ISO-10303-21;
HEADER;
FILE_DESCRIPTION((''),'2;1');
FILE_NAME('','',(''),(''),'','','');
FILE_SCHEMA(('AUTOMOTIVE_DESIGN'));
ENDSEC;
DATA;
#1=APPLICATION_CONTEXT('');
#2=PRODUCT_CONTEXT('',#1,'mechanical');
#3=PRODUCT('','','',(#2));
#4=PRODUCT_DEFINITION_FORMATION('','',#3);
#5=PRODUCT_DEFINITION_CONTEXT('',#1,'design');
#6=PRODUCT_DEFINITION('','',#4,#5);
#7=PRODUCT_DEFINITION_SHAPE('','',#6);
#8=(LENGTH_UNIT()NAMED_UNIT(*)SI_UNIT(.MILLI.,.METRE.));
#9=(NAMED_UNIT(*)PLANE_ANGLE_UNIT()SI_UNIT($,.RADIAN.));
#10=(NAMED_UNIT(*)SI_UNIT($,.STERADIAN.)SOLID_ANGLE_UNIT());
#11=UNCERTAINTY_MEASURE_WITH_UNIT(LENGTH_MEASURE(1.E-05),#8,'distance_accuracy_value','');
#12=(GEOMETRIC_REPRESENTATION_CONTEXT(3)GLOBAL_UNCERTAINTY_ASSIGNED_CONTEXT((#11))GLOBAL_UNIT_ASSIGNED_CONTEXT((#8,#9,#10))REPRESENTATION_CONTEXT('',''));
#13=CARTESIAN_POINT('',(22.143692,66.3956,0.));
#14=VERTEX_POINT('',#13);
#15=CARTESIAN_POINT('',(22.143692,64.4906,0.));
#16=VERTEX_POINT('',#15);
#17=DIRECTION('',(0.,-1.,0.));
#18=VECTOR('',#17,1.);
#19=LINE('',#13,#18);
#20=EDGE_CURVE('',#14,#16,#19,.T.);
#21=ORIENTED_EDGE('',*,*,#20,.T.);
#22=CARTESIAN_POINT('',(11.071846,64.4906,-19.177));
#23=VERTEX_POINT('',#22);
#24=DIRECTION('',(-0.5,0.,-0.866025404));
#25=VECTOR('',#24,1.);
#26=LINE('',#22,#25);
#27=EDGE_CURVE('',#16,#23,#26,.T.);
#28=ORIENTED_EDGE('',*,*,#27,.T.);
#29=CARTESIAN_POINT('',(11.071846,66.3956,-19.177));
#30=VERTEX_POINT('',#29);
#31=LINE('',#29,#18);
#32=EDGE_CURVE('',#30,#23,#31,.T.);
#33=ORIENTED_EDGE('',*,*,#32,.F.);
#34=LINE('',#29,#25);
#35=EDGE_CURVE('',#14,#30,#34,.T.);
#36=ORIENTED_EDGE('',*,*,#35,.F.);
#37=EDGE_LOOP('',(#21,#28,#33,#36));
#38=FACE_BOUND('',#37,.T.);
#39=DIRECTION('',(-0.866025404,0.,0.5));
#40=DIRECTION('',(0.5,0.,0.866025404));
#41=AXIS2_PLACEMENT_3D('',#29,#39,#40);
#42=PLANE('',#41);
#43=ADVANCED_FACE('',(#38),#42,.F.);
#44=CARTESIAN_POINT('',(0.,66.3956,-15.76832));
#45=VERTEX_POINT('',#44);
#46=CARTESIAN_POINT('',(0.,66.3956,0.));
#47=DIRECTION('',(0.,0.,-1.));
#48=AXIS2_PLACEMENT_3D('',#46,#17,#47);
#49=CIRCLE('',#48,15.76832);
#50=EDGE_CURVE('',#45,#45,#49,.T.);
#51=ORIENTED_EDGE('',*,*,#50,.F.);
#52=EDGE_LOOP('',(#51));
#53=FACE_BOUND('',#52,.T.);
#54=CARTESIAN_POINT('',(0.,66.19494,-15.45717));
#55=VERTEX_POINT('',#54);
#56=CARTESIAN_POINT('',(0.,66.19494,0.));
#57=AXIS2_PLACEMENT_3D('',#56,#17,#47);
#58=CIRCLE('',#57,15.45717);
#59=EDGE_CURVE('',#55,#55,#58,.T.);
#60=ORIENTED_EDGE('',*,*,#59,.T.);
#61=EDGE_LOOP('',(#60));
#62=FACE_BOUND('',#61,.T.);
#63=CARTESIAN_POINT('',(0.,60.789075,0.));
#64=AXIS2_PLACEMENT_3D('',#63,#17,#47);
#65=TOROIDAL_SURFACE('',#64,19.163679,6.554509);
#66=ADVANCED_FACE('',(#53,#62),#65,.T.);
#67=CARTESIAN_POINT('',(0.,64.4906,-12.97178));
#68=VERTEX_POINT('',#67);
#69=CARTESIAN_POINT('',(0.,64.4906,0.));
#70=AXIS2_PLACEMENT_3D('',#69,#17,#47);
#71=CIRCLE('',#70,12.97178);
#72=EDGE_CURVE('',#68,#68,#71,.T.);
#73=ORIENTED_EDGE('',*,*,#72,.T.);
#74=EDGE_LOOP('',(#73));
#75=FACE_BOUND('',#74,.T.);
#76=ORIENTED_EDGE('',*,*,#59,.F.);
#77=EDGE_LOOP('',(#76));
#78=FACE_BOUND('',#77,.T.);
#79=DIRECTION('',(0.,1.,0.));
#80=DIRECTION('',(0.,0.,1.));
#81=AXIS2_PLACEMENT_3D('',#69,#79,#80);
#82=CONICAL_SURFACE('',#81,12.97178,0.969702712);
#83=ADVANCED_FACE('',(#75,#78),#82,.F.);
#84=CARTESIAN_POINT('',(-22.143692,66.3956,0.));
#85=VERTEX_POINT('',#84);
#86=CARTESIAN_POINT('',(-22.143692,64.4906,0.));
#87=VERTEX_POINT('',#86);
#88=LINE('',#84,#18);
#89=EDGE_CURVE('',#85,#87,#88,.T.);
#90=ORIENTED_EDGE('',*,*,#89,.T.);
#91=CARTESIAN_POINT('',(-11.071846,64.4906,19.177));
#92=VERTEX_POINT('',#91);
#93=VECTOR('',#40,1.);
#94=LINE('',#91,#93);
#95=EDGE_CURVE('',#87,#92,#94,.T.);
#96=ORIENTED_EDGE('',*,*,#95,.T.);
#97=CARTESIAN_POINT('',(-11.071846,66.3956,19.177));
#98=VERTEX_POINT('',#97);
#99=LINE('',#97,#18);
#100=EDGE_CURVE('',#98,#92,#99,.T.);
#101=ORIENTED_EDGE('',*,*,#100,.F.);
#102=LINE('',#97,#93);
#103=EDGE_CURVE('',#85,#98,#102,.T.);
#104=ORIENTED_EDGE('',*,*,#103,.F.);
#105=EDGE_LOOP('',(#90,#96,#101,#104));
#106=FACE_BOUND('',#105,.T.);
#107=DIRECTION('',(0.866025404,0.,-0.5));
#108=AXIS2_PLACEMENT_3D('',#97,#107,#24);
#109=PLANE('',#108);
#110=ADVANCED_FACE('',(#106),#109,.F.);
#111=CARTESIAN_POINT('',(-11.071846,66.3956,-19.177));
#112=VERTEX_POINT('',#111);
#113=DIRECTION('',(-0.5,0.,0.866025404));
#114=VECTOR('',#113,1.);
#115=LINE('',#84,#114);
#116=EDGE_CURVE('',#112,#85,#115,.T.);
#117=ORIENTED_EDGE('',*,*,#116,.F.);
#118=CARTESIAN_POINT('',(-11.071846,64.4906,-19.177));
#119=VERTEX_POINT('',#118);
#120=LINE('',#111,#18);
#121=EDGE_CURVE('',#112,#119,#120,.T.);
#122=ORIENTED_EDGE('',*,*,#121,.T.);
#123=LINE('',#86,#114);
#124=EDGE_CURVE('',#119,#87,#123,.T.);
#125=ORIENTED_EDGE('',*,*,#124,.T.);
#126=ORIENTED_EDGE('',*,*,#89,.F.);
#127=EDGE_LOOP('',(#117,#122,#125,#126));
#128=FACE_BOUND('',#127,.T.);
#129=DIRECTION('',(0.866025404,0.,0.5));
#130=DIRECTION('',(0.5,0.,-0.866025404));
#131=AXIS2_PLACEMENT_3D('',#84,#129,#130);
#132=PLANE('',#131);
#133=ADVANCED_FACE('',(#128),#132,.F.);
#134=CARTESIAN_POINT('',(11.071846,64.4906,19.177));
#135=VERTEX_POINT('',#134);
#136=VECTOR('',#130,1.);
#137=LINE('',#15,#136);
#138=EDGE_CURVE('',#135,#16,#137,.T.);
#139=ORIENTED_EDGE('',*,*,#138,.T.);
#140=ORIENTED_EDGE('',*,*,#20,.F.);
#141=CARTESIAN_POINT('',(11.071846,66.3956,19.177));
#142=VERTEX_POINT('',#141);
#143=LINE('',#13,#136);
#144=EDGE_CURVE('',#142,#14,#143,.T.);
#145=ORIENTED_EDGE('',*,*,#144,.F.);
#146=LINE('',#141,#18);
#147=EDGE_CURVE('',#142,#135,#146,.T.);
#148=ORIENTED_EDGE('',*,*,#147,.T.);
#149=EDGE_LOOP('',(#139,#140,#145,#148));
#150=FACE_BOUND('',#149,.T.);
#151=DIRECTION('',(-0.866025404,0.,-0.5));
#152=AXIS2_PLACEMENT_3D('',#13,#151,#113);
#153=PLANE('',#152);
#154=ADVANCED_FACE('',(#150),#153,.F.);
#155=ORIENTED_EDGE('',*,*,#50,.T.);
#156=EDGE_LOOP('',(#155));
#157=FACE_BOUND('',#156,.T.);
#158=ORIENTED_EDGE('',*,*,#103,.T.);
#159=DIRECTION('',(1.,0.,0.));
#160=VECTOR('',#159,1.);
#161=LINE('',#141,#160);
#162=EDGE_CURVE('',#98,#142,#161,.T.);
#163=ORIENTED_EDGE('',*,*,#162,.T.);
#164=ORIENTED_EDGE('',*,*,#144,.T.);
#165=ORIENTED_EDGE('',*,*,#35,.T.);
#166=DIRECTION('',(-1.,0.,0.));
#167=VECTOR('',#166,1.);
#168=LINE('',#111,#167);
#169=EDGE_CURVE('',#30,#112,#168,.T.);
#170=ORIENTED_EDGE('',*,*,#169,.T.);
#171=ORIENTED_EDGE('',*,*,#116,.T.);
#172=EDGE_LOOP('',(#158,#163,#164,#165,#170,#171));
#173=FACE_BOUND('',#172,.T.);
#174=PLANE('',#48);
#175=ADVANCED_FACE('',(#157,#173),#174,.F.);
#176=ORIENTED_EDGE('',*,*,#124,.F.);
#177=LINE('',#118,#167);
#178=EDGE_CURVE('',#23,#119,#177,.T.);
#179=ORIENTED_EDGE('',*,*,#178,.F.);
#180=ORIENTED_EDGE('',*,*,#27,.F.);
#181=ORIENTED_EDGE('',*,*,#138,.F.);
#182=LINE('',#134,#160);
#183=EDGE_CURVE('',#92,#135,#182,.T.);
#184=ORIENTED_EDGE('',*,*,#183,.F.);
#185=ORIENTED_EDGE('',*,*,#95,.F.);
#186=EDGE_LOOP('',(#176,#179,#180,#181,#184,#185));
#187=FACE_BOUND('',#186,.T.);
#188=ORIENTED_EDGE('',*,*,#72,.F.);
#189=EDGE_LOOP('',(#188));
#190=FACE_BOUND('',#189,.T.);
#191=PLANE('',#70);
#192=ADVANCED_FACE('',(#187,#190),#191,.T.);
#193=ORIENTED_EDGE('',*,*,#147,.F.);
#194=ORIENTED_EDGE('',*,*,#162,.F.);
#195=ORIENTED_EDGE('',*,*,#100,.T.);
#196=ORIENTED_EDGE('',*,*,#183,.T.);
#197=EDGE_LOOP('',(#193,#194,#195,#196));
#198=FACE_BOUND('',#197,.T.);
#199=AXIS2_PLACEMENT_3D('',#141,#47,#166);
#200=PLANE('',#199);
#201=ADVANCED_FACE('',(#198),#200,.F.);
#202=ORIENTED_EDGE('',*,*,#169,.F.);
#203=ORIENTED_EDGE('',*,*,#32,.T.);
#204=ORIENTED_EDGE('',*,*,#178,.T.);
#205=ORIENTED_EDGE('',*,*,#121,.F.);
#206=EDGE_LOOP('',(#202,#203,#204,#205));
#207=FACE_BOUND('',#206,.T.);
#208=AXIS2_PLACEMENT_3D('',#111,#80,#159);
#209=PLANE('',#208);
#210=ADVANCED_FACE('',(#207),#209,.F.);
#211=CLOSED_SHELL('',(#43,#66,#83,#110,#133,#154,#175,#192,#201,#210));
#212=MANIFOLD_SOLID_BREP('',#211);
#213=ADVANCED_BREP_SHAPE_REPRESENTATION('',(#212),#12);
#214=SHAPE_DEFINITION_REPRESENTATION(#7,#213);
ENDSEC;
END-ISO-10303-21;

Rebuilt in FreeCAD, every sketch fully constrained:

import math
import FreeCAD as App
import Part
import Sketcher
from FreeCAD import Vector
Q = App.Units.Quantity


def add_polygon(sketch, points):
    """Adds a closed chain of lines whose ends are joined by coincident constraints."""
    first, n = sketch.GeometryCount, len(points)
    for a, b in zip(points, points[1:] + points[:1]):
        sketch.addGeometry(Part.LineSegment(App.Vector(*a, 0), App.Vector(*b, 0)), False)
    for i in range(n):
        sketch.addConstraint(Sketcher.Constraint("Coincident", first + i, 2, first + (i + 1) % n, 1))

doc = App.newDocument("Part")
body = doc.addObject("PartDesign::Body", "Body")

# Sketch on XZ plane
sketch1 = body.newObject("Sketcher::SketchObject", "Sketch")
sketch1.AttachmentSupport = (doc.getObject("XZ_Plane"), [""])
sketch1.MapMode = "FlatFace"
sketch1.AttachmentOffset = App.Placement(Vector(0, 0, -2.539 * 25.4), App.Rotation())
add_polygon(sketch1, [(11.071846, 19.177), (22.143692, 0), (11.071846, -19.177), (-11.071846, -19.177), (-22.143692, 0), (-11.071846, 19.177)])  # lines 0-5
sketch1.addConstraint(Sketcher.Constraint("Horizontal", 2))
sketch1.addConstraint(Sketcher.Constraint("Horizontal", 5))
sketch1.addConstraint(Sketcher.Constraint("Symmetric", 0, 2, 3, 2, -1, 1))
sketch1.addConstraint(Sketcher.Constraint("Symmetric", 1, 2, 4, 2, -1, 1))
sketch1.addConstraint(Sketcher.Constraint("PointOnObject", 0, 2, -1))
sketch1.addConstraint(Sketcher.Constraint("Parallel", 0, 3))
sketch1.addConstraint(Sketcher.Constraint("Vertical", 2, 2, 4, 2))
sketch1.addConstraint(Sketcher.Constraint("Angle", 0, Q("-60 deg")))
sketch1.addConstraint(Sketcher.Constraint("DistanceY", 2, 2, 4, 2, Q("1.51 in")))
sketch1.addConstraint(Sketcher.Constraint("DistanceX", 2, 2, 2, 1, Q("22.143692 mm")))
pad1 = body.newObject("PartDesign::Pad", "Pad")
pad1.Profile = sketch1
pad1.Length = Q("0.075 in")
pad1.Reversed = True

# Sketch on XY plane
sketch2 = body.newObject("Sketcher::SketchObject", "Sketch001")
sketch2.AttachmentSupport = (doc.getObject("XY_Plane"), [""])
sketch2.MapMode = "FlatFace"
sketch2.addGeometry(Part.LineSegment(Vector(0, 64.008, 0), Vector(12.97178, 64.008, 0)), False)
sketch2.addGeometry(Part.LineSegment(Vector(12.97178, 64.008, 0), Vector(12.97178, 64.4906, 0)), False)
sketch2.addGeometry(Part.LineSegment(Vector(12.97178, 64.4906, 0), Vector(15.45717, 66.19494, 0)), False)
sketch2.addGeometry(Part.ArcOfCircle(Part.Circle(Vector(19.16368, 60.789074, 0), Vector(0, 0, 1), 6.55451), math.radians(121.199452), math.radians(124.436322)), False)
sketch2.addGeometry(Part.LineSegment(Vector(15.76832, 66.3956, 0), Vector(15.76832, 66.802, 0)), False)
sketch2.addGeometry(Part.LineSegment(Vector(15.76832, 66.802, 0), Vector(0, 66.802, 0)), False)
sketch2.addGeometry(Part.LineSegment(Vector(0, 66.802, 0), Vector(0, 64.008, 0)), False)
sketch2.addConstraint(Sketcher.Constraint("Coincident", 0, 2, 1, 1))
sketch2.addConstraint(Sketcher.Constraint("Coincident", 1, 2, 2, 1))
sketch2.addConstraint(Sketcher.Constraint("Coincident", 2, 2, 3, 2))
sketch2.addConstraint(Sketcher.Constraint("Coincident", 3, 1, 4, 1))
sketch2.addConstraint(Sketcher.Constraint("Coincident", 4, 2, 5, 1))
sketch2.addConstraint(Sketcher.Constraint("Coincident", 5, 2, 6, 1))
sketch2.addConstraint(Sketcher.Constraint("Coincident", 6, 2, 0, 1))
sketch2.addConstraint(Sketcher.Constraint("Horizontal", 0))
sketch2.addConstraint(Sketcher.Constraint("Vertical", 1))
sketch2.addConstraint(Sketcher.Constraint("Vertical", 4))
sketch2.addConstraint(Sketcher.Constraint("Horizontal", 5))
sketch2.addConstraint(Sketcher.Constraint("Vertical", 6))
sketch2.addConstraint(Sketcher.Constraint("PointOnObject", 5, 2, -2))
sketch2.addConstraint(Sketcher.Constraint("DistanceY", 6, 2, 6, 1, Q("0.11 in")))
sketch2.addConstraint(Sketcher.Constraint("DistanceY", 1, 1, 1, 2, Q("0.019 in")))
sketch2.addConstraint(Sketcher.Constraint("DistanceY", 4, 1, 4, 2, Q("0.016 in")))
sketch2.addConstraint(Sketcher.Constraint("DistanceY", -1, 1, 0, 2, Q("2.52 in")))
sketch2.addConstraint(Sketcher.Constraint("DistanceX", 0, 1, 0, 2, Q("0.5107 in")))
sketch2.addConstraint(Sketcher.Constraint("DistanceX", 5, 2, 5, 1, Q("0.6208 in")))
sketch2.addConstraint(Sketcher.Constraint("Radius", 3, Q("6.55451 mm")))
sketch2.addConstraint(Sketcher.Constraint("DistanceY", -1, 1, 2, 2, Q("2.6061 in")))
sketch2.addConstraint(Sketcher.Constraint("DistanceX", 0, 2, 3, 3, Q("6.1919 mm")))
groove = body.newObject("PartDesign::Groove", "Groove")
groove.Profile = sketch2
groove.ReferenceAxis = (sketch2, ["V_Axis"])
groove.Angle = 360

doc.recompute()
